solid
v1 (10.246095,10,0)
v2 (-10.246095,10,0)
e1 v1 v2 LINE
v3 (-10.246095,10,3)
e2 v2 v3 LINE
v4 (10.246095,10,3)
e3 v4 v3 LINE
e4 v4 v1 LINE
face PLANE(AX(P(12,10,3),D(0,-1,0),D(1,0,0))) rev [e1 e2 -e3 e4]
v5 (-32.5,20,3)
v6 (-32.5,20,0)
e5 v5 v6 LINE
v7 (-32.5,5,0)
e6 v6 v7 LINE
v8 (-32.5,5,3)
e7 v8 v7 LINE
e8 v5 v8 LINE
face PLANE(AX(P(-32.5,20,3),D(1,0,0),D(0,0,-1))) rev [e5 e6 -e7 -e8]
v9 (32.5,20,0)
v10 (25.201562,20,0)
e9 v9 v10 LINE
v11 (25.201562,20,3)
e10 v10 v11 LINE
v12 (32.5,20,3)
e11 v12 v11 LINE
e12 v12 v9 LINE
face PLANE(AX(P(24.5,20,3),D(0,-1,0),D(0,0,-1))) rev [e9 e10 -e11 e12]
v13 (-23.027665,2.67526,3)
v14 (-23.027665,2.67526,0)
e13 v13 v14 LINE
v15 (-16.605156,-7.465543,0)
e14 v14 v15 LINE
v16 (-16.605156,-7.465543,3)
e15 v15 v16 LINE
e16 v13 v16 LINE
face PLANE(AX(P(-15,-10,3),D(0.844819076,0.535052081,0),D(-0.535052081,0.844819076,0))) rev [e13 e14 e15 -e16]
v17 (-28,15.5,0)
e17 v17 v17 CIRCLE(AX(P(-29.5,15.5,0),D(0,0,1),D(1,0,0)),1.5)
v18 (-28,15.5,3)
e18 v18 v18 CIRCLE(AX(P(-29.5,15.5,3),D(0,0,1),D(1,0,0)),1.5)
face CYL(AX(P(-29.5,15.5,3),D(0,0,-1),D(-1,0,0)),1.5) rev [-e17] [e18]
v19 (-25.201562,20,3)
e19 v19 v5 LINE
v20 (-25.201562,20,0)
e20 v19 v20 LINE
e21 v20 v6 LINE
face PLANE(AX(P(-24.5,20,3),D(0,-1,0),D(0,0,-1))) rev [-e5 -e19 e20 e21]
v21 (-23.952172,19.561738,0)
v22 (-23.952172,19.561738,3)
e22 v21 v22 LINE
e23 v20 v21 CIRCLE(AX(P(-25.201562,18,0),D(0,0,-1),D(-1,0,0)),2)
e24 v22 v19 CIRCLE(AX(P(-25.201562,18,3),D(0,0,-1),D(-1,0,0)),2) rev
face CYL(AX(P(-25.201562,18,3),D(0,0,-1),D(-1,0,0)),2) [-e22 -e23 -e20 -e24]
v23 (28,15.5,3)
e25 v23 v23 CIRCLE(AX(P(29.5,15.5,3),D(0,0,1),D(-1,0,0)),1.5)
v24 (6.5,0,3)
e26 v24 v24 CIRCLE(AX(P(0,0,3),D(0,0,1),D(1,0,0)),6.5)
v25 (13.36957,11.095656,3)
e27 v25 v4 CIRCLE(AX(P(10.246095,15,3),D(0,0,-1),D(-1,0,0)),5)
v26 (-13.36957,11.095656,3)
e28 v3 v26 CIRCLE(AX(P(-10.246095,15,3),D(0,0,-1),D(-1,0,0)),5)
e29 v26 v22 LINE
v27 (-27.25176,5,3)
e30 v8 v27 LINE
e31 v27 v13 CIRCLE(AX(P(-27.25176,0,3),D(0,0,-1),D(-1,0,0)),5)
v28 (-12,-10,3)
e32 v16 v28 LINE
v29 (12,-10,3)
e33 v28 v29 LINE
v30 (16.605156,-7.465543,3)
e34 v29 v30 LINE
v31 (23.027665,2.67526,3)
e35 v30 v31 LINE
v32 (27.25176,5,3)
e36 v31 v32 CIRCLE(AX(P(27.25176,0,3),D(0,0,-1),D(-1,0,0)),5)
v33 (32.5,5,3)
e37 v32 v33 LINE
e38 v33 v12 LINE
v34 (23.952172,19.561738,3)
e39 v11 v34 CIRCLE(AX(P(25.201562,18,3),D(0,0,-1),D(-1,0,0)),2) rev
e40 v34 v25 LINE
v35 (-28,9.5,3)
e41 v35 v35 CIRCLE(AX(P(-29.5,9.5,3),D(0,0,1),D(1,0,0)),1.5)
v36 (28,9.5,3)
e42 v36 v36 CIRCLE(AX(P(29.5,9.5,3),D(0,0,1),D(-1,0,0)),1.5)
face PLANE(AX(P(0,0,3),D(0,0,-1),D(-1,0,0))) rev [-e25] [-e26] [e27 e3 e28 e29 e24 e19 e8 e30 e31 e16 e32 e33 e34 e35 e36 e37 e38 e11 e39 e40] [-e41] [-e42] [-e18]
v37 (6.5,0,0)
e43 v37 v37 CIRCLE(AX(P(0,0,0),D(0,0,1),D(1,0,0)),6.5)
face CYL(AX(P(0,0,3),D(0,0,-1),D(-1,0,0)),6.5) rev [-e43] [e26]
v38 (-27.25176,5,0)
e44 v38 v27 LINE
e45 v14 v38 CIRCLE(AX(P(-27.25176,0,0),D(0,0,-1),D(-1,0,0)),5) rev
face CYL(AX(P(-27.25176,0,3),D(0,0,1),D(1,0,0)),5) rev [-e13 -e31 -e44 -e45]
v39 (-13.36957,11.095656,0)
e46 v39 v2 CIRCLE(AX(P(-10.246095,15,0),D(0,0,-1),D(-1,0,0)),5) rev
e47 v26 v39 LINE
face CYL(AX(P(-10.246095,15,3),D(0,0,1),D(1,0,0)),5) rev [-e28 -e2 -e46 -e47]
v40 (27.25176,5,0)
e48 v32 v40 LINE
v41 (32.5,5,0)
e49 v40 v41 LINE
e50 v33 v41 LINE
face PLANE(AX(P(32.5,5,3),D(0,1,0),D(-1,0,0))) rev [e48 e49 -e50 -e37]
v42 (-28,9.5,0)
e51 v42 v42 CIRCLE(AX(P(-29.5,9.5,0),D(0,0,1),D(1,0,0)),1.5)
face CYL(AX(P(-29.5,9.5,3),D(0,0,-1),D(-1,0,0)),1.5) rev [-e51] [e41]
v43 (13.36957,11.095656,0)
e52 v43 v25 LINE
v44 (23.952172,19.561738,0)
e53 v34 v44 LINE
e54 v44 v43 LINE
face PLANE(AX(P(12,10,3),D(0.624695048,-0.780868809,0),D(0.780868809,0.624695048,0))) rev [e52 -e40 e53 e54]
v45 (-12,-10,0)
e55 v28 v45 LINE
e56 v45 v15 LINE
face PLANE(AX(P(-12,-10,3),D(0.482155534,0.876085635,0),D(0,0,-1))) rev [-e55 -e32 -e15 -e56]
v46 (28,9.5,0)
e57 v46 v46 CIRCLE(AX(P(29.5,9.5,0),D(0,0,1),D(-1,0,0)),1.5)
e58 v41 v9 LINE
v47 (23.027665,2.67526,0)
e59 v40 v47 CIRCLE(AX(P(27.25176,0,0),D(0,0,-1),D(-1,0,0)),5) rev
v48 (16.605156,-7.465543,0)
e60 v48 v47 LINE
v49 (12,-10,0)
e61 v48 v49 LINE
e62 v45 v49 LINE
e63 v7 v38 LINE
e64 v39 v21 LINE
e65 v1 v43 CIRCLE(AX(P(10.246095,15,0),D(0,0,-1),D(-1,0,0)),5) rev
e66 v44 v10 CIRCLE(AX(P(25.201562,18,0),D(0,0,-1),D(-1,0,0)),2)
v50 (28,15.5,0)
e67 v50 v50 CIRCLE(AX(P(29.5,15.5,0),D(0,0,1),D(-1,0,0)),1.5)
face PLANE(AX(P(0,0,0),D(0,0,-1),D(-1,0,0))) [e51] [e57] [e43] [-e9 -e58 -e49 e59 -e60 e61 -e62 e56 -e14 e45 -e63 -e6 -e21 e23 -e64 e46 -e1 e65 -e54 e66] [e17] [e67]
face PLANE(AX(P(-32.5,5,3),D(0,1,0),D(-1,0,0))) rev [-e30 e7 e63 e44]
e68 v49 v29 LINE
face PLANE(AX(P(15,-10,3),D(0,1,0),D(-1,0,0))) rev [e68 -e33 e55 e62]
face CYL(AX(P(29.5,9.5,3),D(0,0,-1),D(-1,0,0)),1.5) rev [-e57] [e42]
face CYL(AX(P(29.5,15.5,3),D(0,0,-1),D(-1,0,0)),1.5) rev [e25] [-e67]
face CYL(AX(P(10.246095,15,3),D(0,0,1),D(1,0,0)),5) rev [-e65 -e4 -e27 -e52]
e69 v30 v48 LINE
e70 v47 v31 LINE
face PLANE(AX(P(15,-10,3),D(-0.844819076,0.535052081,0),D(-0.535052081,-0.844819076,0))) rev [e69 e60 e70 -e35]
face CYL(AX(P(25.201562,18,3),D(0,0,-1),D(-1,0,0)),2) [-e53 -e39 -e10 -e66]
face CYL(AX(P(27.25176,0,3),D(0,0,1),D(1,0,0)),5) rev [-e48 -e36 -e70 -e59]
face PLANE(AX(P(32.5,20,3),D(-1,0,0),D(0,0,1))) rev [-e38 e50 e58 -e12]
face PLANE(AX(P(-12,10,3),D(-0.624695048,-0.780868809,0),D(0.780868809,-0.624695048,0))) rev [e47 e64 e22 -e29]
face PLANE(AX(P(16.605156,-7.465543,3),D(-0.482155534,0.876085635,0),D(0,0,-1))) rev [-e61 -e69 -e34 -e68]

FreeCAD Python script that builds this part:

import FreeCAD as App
import Part
import Sketcher

V = App.Vector


def edges_at(feature, points):
    """Names of the edges that pass closest to the given points."""
    edges = feature.Shape.Edges
    near = lambda p: min(range(len(edges)), key=lambda i: edges[i].distToShape(Part.Vertex(*p))[0])
    return sorted({f"Edge{near(p) + 1}" for p in points})


def add_polygon(sketch, points):
    """Adds a closed chain of lines whose ends are joined by coincident constraints."""
    first, n = sketch.GeometryCount, len(points)
    for a, b in zip(points, points[1:] + points[:1]):
        sketch.addGeometry(Part.LineSegment(App.Vector(*a, 0), App.Vector(*b, 0)), False)
    for i in range(n):
        sketch.addConstraint(Sketcher.Constraint("Coincident", first + i, 2, first + (i + 1) % n, 1))

doc = App.newDocument("Part")
body = doc.addObject("PartDesign::Body", "Body")

# Sketch on XY plane
sketch1 = doc.addObject("Sketcher::SketchObject", "Sketch")
body.addObject(sketch1)
sketch1.AttachmentSupport = (doc.XY_Plane, [""])
sketch1.MapMode = "FlatFace"
add_polygon(sketch1, [(-15, -10), (15, -10), (24.5, 5), (32.5, 5), (32.5, 20), (24.5, 20), (12, 10), (-12, 10), (-24.5, 20), (-32.5, 20), (-32.5, 5), (-24.5, 5)])  # lines 0-11
sketch1.addGeometry(Part.Circle(V(0, 0, 0), V(0, 0, 1), 6.5), False)  # 12
sketch1.addGeometry(Part.Circle(V(29.5, 9.5, 0), V(0, 0, 1), 1.5), False)  # 13
sketch1.addGeometry(Part.Circle(V(29.5, 15.5, 0), V(0, 0, 1), 1.5), False)  # 14
sketch1.addGeometry(Part.Circle(V(-29.5, 9.5, 0), V(0, 0, 1), 1.5), False)  # 15
sketch1.addGeometry(Part.Circle(V(-29.5, 15.5, 0), V(0, 0, 1), 1.5), False)  # 16
sketch1.addConstraint(Sketcher.Constraint("Horizontal", 0))
sketch1.addConstraint(Sketcher.Constraint("Horizontal", 2))
sketch1.addConstraint(Sketcher.Constraint("Vertical", 3))
sketch1.addConstraint(Sketcher.Constraint("Horizontal", 4))
sketch1.addConstraint(Sketcher.Constraint("Horizontal", 6))
sketch1.addConstraint(Sketcher.Constraint("Horizontal", 8))
sketch1.addConstraint(Sketcher.Constraint("Vertical", 9))
sketch1.addConstraint(Sketcher.Constraint("Horizontal", 10))
sketch1.addConstraint(Sketcher.Constraint("Coincident", 12, 3, -1, 1))
sketch1.addConstraint(Sketcher.Constraint("Equal", 13, 14))
sketch1.addConstraint(Sketcher.Constraint("Equal", 14, 15))
sketch1.addConstraint(Sketcher.Constraint("Equal", 15, 16))
sketch1.addConstraint(Sketcher.Constraint("Symmetric", 13, 3, 15, 3, -2))
sketch1.addConstraint(Sketcher.Constraint("Symmetric", 14, 3, 16, 3, -2))
sketch1.addConstraint(Sketcher.Constraint("Symmetric", 4, 2, 7, 2, -2))
sketch1.addConstraint(Sketcher.Constraint("Symmetric", 2, 2, 9, 2, -2))
sketch1.addConstraint(Sketcher.Constraint("Vertical", 13, 3, 14, 3))
sketch1.addConstraint(Sketcher.Constraint("Vertical", 1, 2, 4, 2))
sketch1.addConstraint(Sketcher.Constraint("Vertical", 7, 2, 10, 2))
sketch1.addConstraint(Sketcher.Constraint("Equal", 5, 7))
sketch1.addConstraint(Sketcher.Constraint("Equal", 1, 11))
sketch1.addConstraint(Sketcher.Constraint("Diameter", 12, 13.0))
sketch1.addConstraint(Sketcher.Constraint("Diameter", 13, 3.0))
sketch1.addConstraint(Sketcher.Constraint("DistanceX", 0, 1, 0, 2, 30.0))
sketch1.addConstraint(Sketcher.Constraint("DistanceX", 2, 1, 2, 2, 8.0))
sketch1.addConstraint(Sketcher.Constraint("DistanceX", 6, 2, 6, 1, 24.0))
sketch1.addConstraint(Sketcher.Constraint("DistanceY", 3, 1, 3, 2, 15.0))
sketch1.addConstraint(Sketcher.Constraint("DistanceY", 0, 2, -1, 1, 10.0))
sketch1.addConstraint(Sketcher.Constraint("DistanceY", -1, 1, 1, 2, 5.0))
sketch1.addConstraint(Sketcher.Constraint("DistanceY", -1, 1, 5, 2, 10.0))
sketch1.addConstraint(Sketcher.Constraint("DistanceY", 13, 3, 14, 3, 6.0))
sketch1.addConstraint(Sketcher.Constraint("DistanceX", 15, 3, 13, 3, 59.0))
sketch1.addConstraint(Sketcher.Constraint("DistanceX", 1, 2, 13, 3, 5.0))
sketch1.addConstraint(Sketcher.Constraint("DistanceY", -1, 1, 13, 3, 9.5))
pad1 = doc.addObject("PartDesign::Pad", "Pad")
body.addObject(pad1)
pad1.Profile = sketch1
pad1.Length = 3
doc.recompute()

fillet = doc.addObject("PartDesign::Fillet", "Fillet")
body.addObject(fillet)
fillet.Base = (pad1, edges_at(pad1, [(-12, 10, 1.5), (12, 10, 1.5)]))
fillet.Radius = 5
doc.recompute()

chamfer = doc.addObject("PartDesign::Chamfer", "Chamfer")
body.addObject(chamfer)
chamfer.Base = (fillet, edges_at(fillet, [(15, -10, 1.5), (-15, -10, 1.5)]))
chamfer.Size = 3
doc.recompute()

fillet2 = doc.addObject("PartDesign::Fillet", "Fillet001")
body.addObject(fillet2)
fillet2.Base = (chamfer, edges_at(chamfer, [(-24.5, 5, 1.5), (24.5, 5, 1.5)]))
fillet2.Radius = 5
doc.recompute()

fillet3 = doc.addObject("PartDesign::Fillet", "Fillet002")
body.addObject(fillet3)
fillet3.Base = (fillet2, edges_at(fillet2, [(-24.5, 20, 1.5), (24.5, 20, 1.5)]))
fillet3.Radius = 2

doc.recompute()
